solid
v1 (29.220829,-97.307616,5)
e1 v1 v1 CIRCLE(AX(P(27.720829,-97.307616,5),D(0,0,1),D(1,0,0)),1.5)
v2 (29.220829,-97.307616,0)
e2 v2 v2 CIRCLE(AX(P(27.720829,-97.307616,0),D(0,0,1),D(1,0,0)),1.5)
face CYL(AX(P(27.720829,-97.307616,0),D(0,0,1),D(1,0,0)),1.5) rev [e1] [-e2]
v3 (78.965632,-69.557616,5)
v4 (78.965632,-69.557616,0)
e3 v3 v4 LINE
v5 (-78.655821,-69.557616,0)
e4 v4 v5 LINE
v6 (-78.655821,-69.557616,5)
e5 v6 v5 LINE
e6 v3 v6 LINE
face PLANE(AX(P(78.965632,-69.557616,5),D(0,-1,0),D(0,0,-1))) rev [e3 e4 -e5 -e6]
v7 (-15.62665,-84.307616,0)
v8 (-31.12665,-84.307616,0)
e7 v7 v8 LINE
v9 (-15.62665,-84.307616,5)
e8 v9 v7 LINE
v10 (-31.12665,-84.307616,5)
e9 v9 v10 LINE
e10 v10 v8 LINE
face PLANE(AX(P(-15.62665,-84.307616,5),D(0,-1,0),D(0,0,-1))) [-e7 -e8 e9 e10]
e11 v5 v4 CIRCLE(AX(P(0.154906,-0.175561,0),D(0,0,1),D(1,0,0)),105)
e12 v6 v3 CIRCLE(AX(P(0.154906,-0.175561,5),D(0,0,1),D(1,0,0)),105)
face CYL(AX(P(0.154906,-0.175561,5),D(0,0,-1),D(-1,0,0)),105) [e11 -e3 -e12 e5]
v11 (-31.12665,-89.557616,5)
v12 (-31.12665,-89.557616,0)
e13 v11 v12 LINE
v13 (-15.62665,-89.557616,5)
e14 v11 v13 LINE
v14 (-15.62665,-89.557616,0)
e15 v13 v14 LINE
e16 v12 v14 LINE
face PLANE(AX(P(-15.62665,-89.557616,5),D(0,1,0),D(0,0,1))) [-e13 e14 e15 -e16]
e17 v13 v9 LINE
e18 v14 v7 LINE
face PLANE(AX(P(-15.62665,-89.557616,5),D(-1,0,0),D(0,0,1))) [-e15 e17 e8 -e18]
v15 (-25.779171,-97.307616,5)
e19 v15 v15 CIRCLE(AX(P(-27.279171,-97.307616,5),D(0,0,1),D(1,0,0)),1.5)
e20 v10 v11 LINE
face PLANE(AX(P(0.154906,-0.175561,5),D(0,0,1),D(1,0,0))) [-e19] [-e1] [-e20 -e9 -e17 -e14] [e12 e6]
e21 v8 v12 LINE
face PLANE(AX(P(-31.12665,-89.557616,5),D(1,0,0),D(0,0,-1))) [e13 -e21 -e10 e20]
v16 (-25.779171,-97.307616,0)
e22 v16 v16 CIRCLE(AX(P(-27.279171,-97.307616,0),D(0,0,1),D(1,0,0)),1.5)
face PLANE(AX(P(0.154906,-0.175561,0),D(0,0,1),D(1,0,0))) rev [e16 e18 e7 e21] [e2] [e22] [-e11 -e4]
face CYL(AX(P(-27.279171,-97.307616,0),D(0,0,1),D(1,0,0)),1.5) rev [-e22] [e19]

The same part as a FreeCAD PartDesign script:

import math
import FreeCAD as App
import Part
import Sketcher
from FreeCAD import Vector
Q = App.Units.Quantity

doc = App.newDocument("Part")
body = doc.addObject("PartDesign::Body", "Body")

# Sketch on XY plane
sketch1 = body.newObject("Sketcher::SketchObject", "Sketch")
sketch1.AttachmentSupport = (doc.getObject("XY_Plane"), [""])
sketch1.MapMode = "FlatFace"
sketch1.addGeometry(Part.LineSegment(Vector(79, -70, 0), Vector(-79, -70, 0)), False)
sketch1.addGeometry(Part.ArcOfCircle(Part.Circle(Vector(0, 0, 0), Vector(0, 0, 1), 105), math.radians(-139), math.radians(-41)), False)
sketch1.addGeometry(Part.LineSegment(Vector(-16, -90, 0), Vector(-31, -90, 0)), False)
sketch1.addGeometry(Part.LineSegment(Vector(-31, -90, 0), Vector(-31, -84, 0)), False)
sketch1.addGeometry(Part.LineSegment(Vector(-31, -84, 0), Vector(-16, -84, 0)), False)
sketch1.addGeometry(Part.LineSegment(Vector(-16, -84, 0), Vector(-16, -90, 0)), False)
sketch1.addConstraint(Sketcher.Constraint("Coincident", 0, 1, 1, 2))
sketch1.addConstraint(Sketcher.Constraint("Coincident", 1, 1, 0, 2))
sketch1.addConstraint(Sketcher.Constraint("Coincident", 2, 2, 3, 1))
sketch1.addConstraint(Sketcher.Constraint("Coincident", 3, 2, 4, 1))
sketch1.addConstraint(Sketcher.Constraint("Coincident", 4, 2, 5, 1))
sketch1.addConstraint(Sketcher.Constraint("Coincident", 5, 2, 2, 1))
sketch1.addConstraint(Sketcher.Constraint("Horizontal", 0))
sketch1.addConstraint(Sketcher.Constraint("Horizontal", 2))
sketch1.addConstraint(Sketcher.Constraint("Vertical", 3))
sketch1.addConstraint(Sketcher.Constraint("Horizontal", 4))
sketch1.addConstraint(Sketcher.Constraint("Vertical", 5))
sketch1.addConstraint(Sketcher.Constraint("Radius", 1, Q("105 mm")))
sketch1.addConstraint(Sketcher.Constraint("DistanceX", 2, 2, 2, 1, Q("15.5 mm")))
sketch1.addConstraint(Sketcher.Constraint("DistanceY", 2, 2, 1, 1, Q("20 mm")))
sketch1.addConstraint(Sketcher.Constraint("DistanceY", 3, 1, 3, 2, Q("5.25 mm")))
sketch1.addConstraint(Sketcher.Constraint("DistanceX", 0, 2, 0, 1, Q("157.621452 mm")))
sketch1.addConstraint(Sketcher.Constraint("DistanceY", 1, 3, -1, 1, Q("0.175561 mm")))
sketch1.addConstraint(Sketcher.Constraint("DistanceX", -1, 1, 0, 1, Q("78.965632 mm")))
sketch1.addConstraint(Sketcher.Constraint("DistanceX", 2, 2, -1, 1, Q("31.12665 mm")))
pad1 = body.newObject("PartDesign::Pad", "Pad")
pad1.Profile = sketch1
pad1.Length = 5

# Sketch on XY plane
sketch2 = body.newObject("Sketcher::SketchObject", "Sketch001")
sketch2.AttachmentSupport = (doc.getObject("XY_Plane"), [""])
sketch2.MapMode = "FlatFace"
sketch2.AttachmentOffset = App.Placement(Vector(0, 0, 5), App.Rotation())
sketch2.addGeometry(Part.Circle(Vector(-27.3, -97.3, 0), Vector(0, 0, 1), 1.5), False)
sketch2.addGeometry(Part.Circle(Vector(27.7, -97.3, 0), Vector(0, 0, 1), 1.5), False)
sketch2.addConstraint(Sketcher.Constraint("Equal", 0, 1))
sketch2.addConstraint(Sketcher.Constraint("Horizontal", 0, 3, 1, 3))
sketch2.addConstraint(Sketcher.Constraint("Diameter", 0, Q("3 mm")))
sketch2.addConstraint(Sketcher.Constraint("DistanceX", 0, 3, 1, 3, Q("55 mm")))
sketch2.addConstraint(Sketcher.Constraint("DistanceX", 0, 3, -1, 1, Q("27.279171 mm")))
sketch2.addConstraint(Sketcher.Constraint("DistanceY", 0, 3, -1, 1, Q("97.307616 mm")))
pocket1 = body.newObject("PartDesign::Pocket", "Pocket")
pocket1.Profile = sketch2
pocket1.Length = 5

doc.recompute()
